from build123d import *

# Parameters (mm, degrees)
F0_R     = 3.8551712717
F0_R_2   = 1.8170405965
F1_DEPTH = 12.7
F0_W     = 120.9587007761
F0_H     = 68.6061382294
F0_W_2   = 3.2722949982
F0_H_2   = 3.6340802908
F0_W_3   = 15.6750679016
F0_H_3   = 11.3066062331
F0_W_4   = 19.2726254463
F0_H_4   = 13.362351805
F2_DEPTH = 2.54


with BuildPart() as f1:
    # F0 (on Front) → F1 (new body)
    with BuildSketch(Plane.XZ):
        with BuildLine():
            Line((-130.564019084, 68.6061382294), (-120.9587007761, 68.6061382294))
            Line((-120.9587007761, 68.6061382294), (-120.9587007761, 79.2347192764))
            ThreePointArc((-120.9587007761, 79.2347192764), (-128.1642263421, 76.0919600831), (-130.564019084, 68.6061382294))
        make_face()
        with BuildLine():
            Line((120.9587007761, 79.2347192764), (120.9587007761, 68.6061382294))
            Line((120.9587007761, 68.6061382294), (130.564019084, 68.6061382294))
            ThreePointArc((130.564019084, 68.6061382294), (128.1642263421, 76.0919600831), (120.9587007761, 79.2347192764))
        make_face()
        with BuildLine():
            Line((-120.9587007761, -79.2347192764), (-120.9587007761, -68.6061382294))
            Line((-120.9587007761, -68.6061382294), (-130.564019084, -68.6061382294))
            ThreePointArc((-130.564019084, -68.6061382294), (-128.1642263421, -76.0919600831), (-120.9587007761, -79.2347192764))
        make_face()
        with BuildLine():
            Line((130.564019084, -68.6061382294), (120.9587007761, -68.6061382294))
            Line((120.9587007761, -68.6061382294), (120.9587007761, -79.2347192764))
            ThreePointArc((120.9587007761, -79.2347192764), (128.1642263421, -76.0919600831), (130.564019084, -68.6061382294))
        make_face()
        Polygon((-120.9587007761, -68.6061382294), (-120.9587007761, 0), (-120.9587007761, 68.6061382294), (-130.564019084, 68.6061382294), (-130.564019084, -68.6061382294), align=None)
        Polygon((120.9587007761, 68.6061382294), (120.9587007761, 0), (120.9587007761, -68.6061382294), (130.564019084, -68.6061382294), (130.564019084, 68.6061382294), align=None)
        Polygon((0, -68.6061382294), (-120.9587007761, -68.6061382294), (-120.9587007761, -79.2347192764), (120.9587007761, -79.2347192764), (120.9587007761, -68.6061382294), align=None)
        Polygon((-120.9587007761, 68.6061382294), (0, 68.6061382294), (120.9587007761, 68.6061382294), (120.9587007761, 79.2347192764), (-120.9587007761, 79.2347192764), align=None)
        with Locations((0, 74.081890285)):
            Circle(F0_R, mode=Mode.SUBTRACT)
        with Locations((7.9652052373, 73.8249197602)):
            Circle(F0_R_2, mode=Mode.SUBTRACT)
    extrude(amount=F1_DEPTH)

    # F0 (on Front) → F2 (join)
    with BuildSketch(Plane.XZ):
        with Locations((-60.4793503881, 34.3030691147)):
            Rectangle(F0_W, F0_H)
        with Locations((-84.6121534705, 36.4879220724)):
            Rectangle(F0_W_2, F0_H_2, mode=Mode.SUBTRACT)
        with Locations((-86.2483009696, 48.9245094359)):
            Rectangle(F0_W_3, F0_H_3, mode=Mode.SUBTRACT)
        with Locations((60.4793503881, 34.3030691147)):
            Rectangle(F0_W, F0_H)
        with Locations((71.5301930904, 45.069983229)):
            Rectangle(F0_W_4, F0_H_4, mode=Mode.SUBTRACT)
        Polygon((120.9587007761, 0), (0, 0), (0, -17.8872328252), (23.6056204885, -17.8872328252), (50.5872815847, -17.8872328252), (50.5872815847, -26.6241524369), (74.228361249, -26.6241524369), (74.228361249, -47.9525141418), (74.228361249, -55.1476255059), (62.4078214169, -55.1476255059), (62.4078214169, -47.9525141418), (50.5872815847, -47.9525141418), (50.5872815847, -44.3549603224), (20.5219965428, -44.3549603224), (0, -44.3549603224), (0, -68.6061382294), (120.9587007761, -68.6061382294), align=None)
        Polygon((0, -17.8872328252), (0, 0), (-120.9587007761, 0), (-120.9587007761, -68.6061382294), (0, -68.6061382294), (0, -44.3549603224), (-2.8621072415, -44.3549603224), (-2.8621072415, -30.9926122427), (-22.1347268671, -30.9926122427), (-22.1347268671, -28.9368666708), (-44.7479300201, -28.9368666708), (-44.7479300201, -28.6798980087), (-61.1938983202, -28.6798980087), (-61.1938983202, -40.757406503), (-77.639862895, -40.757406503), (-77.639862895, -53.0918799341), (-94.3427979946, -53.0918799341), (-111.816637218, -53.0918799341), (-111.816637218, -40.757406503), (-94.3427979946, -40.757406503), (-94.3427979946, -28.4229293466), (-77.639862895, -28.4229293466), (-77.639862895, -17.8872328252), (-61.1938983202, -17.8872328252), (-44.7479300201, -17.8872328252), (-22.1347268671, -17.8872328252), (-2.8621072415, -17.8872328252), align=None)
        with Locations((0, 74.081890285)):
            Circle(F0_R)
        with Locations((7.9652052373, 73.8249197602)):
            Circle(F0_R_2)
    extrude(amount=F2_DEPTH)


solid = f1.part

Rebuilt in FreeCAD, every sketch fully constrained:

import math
import FreeCAD as App
import Part
import Sketcher
from FreeCAD import Vector
Q = App.Units.Quantity

doc = App.newDocument("Part")
body = doc.addObject("PartDesign::Body", "Body")

sketch1 = doc.addObject("Sketcher::SketchObject", "Sketch")
body.addObject(sketch1)
sketch1.AttachmentSupport = (doc.XZ_Plane, [""])
sketch1.MapMode = "FlatFace"
sketch1.addGeometry([
    Part.ArcOfCircle(Part.Circle(Vector(-121.1, 69.7, 0), Vector(0, 0, 1), 9.5), math.radians(89), math.radians(187)),
    Part.LineSegment(Vector(-130.6, 68.6, 0), Vector(-130.6, -68.6, 0)),
    Part.ArcOfCircle(Part.Circle(Vector(-121.1, -69.7, 0), Vector(0, 0, 1), 9.5), math.radians(173), math.radians(271)),
    Part.LineSegment(Vector(-121, -79.2, 0), Vector(121, -79.2, 0)),
    Part.ArcOfCircle(Part.Circle(Vector(121.1, -69.7, 0), Vector(0, 0, 1), 9.5), math.radians(-91), math.radians(7)),
    Part.LineSegment(Vector(130.6, -68.6, 0), Vector(130.6, 68.6, 0)),
    Part.ArcOfCircle(Part.Circle(Vector(121.1, 69.7, 0), Vector(0, 0, 1), 9.5), math.radians(-7), math.radians(91)),
    Part.LineSegment(Vector(121, 79.2, 0), Vector(-121, 79.2, 0)),
    Part.LineSegment(Vector(121, 68.6, 0), Vector(121, -68.6, 0)),
    Part.LineSegment(Vector(121, -68.6, 0), Vector(-121, -68.6, 0)),
    Part.LineSegment(Vector(-121, -68.6, 0), Vector(-121, 68.6, 0)),
    Part.LineSegment(Vector(-121, 68.6, 0), Vector(121, 68.6, 0)),
    Part.Circle(Vector(0, 74.1, 0), Vector(0, 0, 1), 3.9),
    Part.Circle(Vector(8, 73.8, 0), Vector(0, 0, 1), 1.8),
], False)
sketch1.addConstraint([
    Sketcher.Constraint("Coincident", 0, 2, 1, 1),
    Sketcher.Constraint("Coincident", 1, 2, 2, 1),
    Sketcher.Constraint("Coincident", 2, 2, 3, 1),
    Sketcher.Constraint("Coincident", 3, 2, 4, 1),
    Sketcher.Constraint("Coincident", 4, 2, 5, 1),
    Sketcher.Constraint("Coincident", 5, 2, 6, 1),
    Sketcher.Constraint("Coincident", 6, 2, 7, 1),
    Sketcher.Constraint("Coincident", 7, 2, 0, 1),
    Sketcher.Constraint("Coincident", 8, 2, 9, 1),
    Sketcher.Constraint("Coincident", 9, 2, 10, 1),
    Sketcher.Constraint("Coincident", 10, 2, 11, 1),
    Sketcher.Constraint("Coincident", 11, 2, 8, 1),
    Sketcher.Constraint("Vertical", 1),
    Sketcher.Constraint("Horizontal", 3),
    Sketcher.Constraint("Vertical", 5),
    Sketcher.Constraint("Horizontal", 7),
    Sketcher.Constraint("Vertical", 8),
    Sketcher.Constraint("Horizontal", 9),
    Sketcher.Constraint("Vertical", 10),
    Sketcher.Constraint("Horizontal", 11),
    Sketcher.Constraint("Equal", 0, 2),
    Sketcher.Constraint("Equal", 2, 4),
    Sketcher.Constraint("Equal", 4, 6),
    Sketcher.Constraint("Symmetric", 0, 3, 4, 3, -1, 1),
    Sketcher.Constraint("Symmetric", 2, 3, 6, 3, -1, 1),
    Sketcher.Constraint("Symmetric", 8, 2, 10, 2, -1, 1),
    Sketcher.Constraint("Symmetric", 2, 3, 4, 3, -2),
    Sketcher.Constraint("PointOnObject", 12, 3, -2),
    Sketcher.Constraint("Horizontal", 1, 2, 4, 2),
    Sketcher.Constraint("Horizontal", 4, 2, 8, 2),
    Sketcher.Constraint("Vertical", 3, 2, 6, 2),
    Sketcher.Constraint("Vertical", 6, 2, 8, 2),
    Sketcher.Constraint("Diameter", 13, 3.634081),
    Sketcher.Constraint("Diameter", 12, 7.710343),
    Sketcher.Constraint("DistanceX", 3, 1, 3, 2, 241.917402),
    Sketcher.Constraint("Radius", 0, 9.540267),
    Sketcher.Constraint("DistanceY", 13, 3, 6, 2, 5.4098),
    Sketcher.Constraint("DistanceY", 1, 2, 1, 1, 137.212276),
    Sketcher.Constraint("DistanceY", -1, 1, 12, 3, 74.08189),
    Sketcher.Constraint("DistanceY", -1, 1, 13, 3, 73.82492),
    Sketcher.Constraint("DistanceX", 0, 2, -1, 1, 130.564019),
    Sketcher.Constraint("DistanceX", -1, 1, 13, 3, 7.965205),
])
pad1 = doc.addObject("PartDesign::Pad", "Pad")
body.addObject(pad1)
pad1.Profile = sketch1
pad1.Length = Q("0.5 in")

sketch2 = doc.addObject("Sketcher::SketchObject", "Sketch001")
body.addObject(sketch2)
sketch2.AttachmentSupport = (doc.XZ_Plane, [""])
sketch2.MapMode = "FlatFace"
sketch2.addGeometry([
    Part.LineSegment(Vector(-120.96, 68.61, 0), Vector(-120.96, -68.61, 0)),
    Part.LineSegment(Vector(-120.96, -68.61, 0), Vector(120.96, -68.61, 0)),
    Part.LineSegment(Vector(120.96, -68.61, 0), Vector(120.96, 68.61, 0)),
    Part.LineSegment(Vector(120.96, 68.61, 0), Vector(-120.96, 68.61, 0)),
    Part.LineSegment(Vector(50.59, -17.89, 0), Vector(50.59, -26.62, 0)),
    Part.LineSegment(Vector(50.59, -26.62, 0), Vector(74.23, -26.62, 0)),
    Part.LineSegment(Vector(74.23, -26.62, 0), Vector(74.23, -55.15, 0)),
    Part.LineSegment(Vector(74.23, -55.15, 0), Vector(62.41, -55.15, 0)),
    Part.LineSegment(Vector(62.41, -55.15, 0), Vector(62.41, -47.95, 0)),
    Part.LineSegment(Vector(62.41, -47.95, 0), Vector(50.59, -47.95, 0)),
    Part.LineSegment(Vector(50.59, -47.95, 0), Vector(50.59, -44.35, 0)),
    Part.LineSegment(Vector(50.59, -44.35, 0), Vector(-2.86, -44.35, 0)),
    Part.LineSegment(Vector(-2.86, -44.35, 0), Vector(-2.86, -30.99, 0)),
    Part.LineSegment(Vector(-2.86, -30.99, 0), Vector(-22.13, -30.99, 0)),
    Part.LineSegment(Vector(-22.13, -30.99, 0), Vector(-22.13, -28.94, 0)),
    Part.LineSegment(Vector(-22.13, -28.94, 0), Vector(-44.75, -28.94, 0)),
    Part.LineSegment(Vector(-44.75, -28.94, 0), Vector(-44.75, -28.68, 0)),
    Part.LineSegment(Vector(-44.75, -28.68, 0), Vector(-61.19, -28.68, 0)),
    Part.LineSegment(Vector(-61.19, -28.68, 0), Vector(-61.19, -40.76, 0)),
    Part.LineSegment(Vector(-61.19, -40.76, 0), Vector(-77.64, -40.76, 0)),
    Part.LineSegment(Vector(-77.64, -40.76, 0), Vector(-77.64, -53.09, 0)),
    Part.LineSegment(Vector(-77.64, -53.09, 0), Vector(-111.82, -53.09, 0)),
    Part.LineSegment(Vector(-111.82, -53.09, 0), Vector(-111.82, -40.76, 0)),
    Part.LineSegment(Vector(-111.82, -40.76, 0), Vector(-94.34, -40.76, 0)),
    Part.LineSegment(Vector(-94.34, -40.76, 0), Vector(-94.34, -28.42, 0)),
    Part.LineSegment(Vector(-94.34, -28.42, 0), Vector(-77.64, -28.42, 0)),
    Part.LineSegment(Vector(-77.64, -28.42, 0), Vector(-77.64, -17.89, 0)),
    Part.LineSegment(Vector(-77.64, -17.89, 0), Vector(50.59, -17.89, 0)),
    Part.LineSegment(Vector(-82.98, 34.67, 0), Vector(-86.25, 34.67, 0)),
    Part.LineSegment(Vector(-86.25, 34.67, 0), Vector(-86.25, 38.3, 0)),
    Part.LineSegment(Vector(-86.25, 38.3, 0), Vector(-82.98, 38.3, 0)),
    Part.LineSegment(Vector(-82.98, 38.3, 0), Vector(-82.98, 34.67, 0)),
    Part.LineSegment(Vector(-78.41, 43.27, 0), Vector(-94.09, 43.27, 0)),
    Part.LineSegment(Vector(-94.09, 43.27, 0), Vector(-94.09, 54.58, 0)),
    Part.LineSegment(Vector(-94.09, 54.58, 0), Vector(-78.41, 54.58, 0)),
    Part.LineSegment(Vector(-78.41, 54.58, 0), Vector(-78.41, 43.27, 0)),
    Part.LineSegment(Vector(81.17, 38.39, 0), Vector(61.89, 38.39, 0)),
    Part.LineSegment(Vector(61.89, 38.39, 0), Vector(61.89, 51.75, 0)),
    Part.LineSegment(Vector(61.89, 51.75, 0), Vector(81.17, 51.75, 0)),
    Part.LineSegment(Vector(81.17, 51.75, 0), Vector(81.17, 38.39, 0)),
    Part.Circle(Vector(0, 74.08, 0), Vector(0, 0, 1), 3.86),
    Part.Circle(Vector(7.97, 73.82, 0), Vector(0, 0, 1), 1.82),
], False)
sketch2.addConstraint([
    Sketcher.Constraint("Coincident", 0, 2, 1, 1),
    Sketcher.Constraint("Coincident", 1, 2, 2, 1),
    Sketcher.Constraint("Coincident", 2, 2, 3, 1),
    Sketcher.Constraint("Coincident", 3, 2, 0, 1),
    Sketcher.Constraint("Coincident", 4, 2, 5, 1),
    Sketcher.Constraint("Coincident", 5, 2, 6, 1),
    Sketcher.Constraint("Coincident", 6, 2, 7, 1),
    Sketcher.Constraint("Coincident", 7, 2, 8, 1),
    Sketcher.Constraint("Coincident", 8, 2, 9, 1),
    Sketcher.Constraint("Coincident", 9, 2, 10, 1),
    Sketcher.Constraint("Coincident", 10, 2, 11, 1),
    Sketcher.Constraint("Coincident", 11, 2, 12, 1),
    Sketcher.Constraint("Coincident", 12, 2, 13, 1),
    Sketcher.Constraint("Coincident", 13, 2, 14, 1),
    Sketcher.Constraint("Coincident", 14, 2, 15, 1),
    Sketcher.Constraint("Coincident", 15, 2, 16, 1),
    Sketcher.Constraint("Coincident", 16, 2, 17, 1),
    Sketcher.Constraint("Coincident", 17, 2, 18, 1),
    Sketcher.Constraint("Coincident", 18, 2, 19, 1),
    Sketcher.Constraint("Coincident", 19, 2, 20, 1),
    Sketcher.Constraint("Coincident", 20, 2, 21, 1),
    Sketcher.Constraint("Coincident", 21, 2, 22, 1),
    Sketcher.Constraint("Coincident", 22, 2, 23, 1),
    Sketcher.Constraint("Coincident", 23, 2, 24, 1),
    Sketcher.Constraint("Coincident", 24, 2, 25, 1),
    Sketcher.Constraint("Coincident", 25, 2, 26, 1),
    Sketcher.Constraint("Coincident", 26, 2, 27, 1),
    Sketcher.Constraint("Coincident", 27, 2, 4, 1),
    Sketcher.Constraint("Coincident", 28, 2, 29, 1),
    Sketcher.Constraint("Coincident", 29, 2, 30, 1),
    Sketcher.Constraint("Coincident", 30, 2, 31, 1),
    Sketcher.Constraint("Coincident", 31, 2, 28, 1),
    Sketcher.Constraint("Coincident", 32, 2, 33, 1),
    Sketcher.Constraint("Coincident", 33, 2, 34, 1),
    Sketcher.Constraint("Coincident", 34, 2, 35, 1),
    Sketcher.Constraint("Coincident", 35, 2, 32, 1),
    Sketcher.Constraint("Coincident", 36, 2, 37, 1),
    Sketcher.Constraint("Coincident", 37, 2, 38, 1),
    Sketcher.Constraint("Coincident", 38, 2, 39, 1),
    Sketcher.Constraint("Coincident", 39, 2, 36, 1),
    Sketcher.Constraint("Vertical", 0),
    Sketcher.Constraint("Horizontal", 1),
    Sketcher.Constraint("Vertical", 2),
    Sketcher.Constraint("Horizontal", 3),
    Sketcher.Constraint("Vertical", 4),
    Sketcher.Constraint("Horizontal", 5),
    Sketcher.Constraint("Vertical", 6),
    Sketcher.Constraint("Horizontal", 7),
    Sketcher.Constraint("Vertical", 8),
    Sketcher.Constraint("Horizontal", 9),
    Sketcher.Constraint("Vertical", 10),
    Sketcher.Constraint("Horizontal", 11),
    Sketcher.Constraint("Vertical", 12),
    Sketcher.Constraint("Horizontal", 13),
    Sketcher.Constraint("Vertical", 14),
    Sketcher.Constraint("Horizontal", 15),
    Sketcher.Constraint("Vertical", 16),
    Sketcher.Constraint("Horizontal", 17),
    Sketcher.Constraint("Vertical", 18),
    Sketcher.Constraint("Horizontal", 19),
    Sketcher.Constraint("Vertical", 20),
    Sketcher.Constraint("Horizontal", 21),
    Sketcher.Constraint("Vertical", 22),
    Sketcher.Constraint("Horizontal", 23),
    Sketcher.Constraint("Vertical", 24),
    Sketcher.Constraint("Horizontal", 25),
    Sketcher.Constraint("Vertical", 26),
    Sketcher.Constraint("Horizontal", 27),
    Sketcher.Constraint("Horizontal", 28),
    Sketcher.Constraint("Vertical", 29),
    Sketcher.Constraint("Horizontal", 30),
    Sketcher.Constraint("Vertical", 31),
    Sketcher.Constraint("Horizontal", 32),
    Sketcher.Constraint("Vertical", 33),
    Sketcher.Constraint("Horizontal", 34),
    Sketcher.Constraint("Vertical", 35),
    Sketcher.Constraint("Horizontal", 36),
    Sketcher.Constraint("Vertical", 37),
    Sketcher.Constraint("Horizontal", 38),
    Sketcher.Constraint("Vertical", 39),
    Sketcher.Constraint("Symmetric", 0, 2, 2, 2, -1, 1),
    Sketcher.Constraint("PointOnObject", 40, 3, -2),
    Sketcher.Constraint("Horizontal", 19, 2, 22, 2),
    Sketcher.Constraint("Vertical", 4, 2, 9, 2),
    Sketcher.Constraint("Vertical", 20, 2, 25, 2),
    Sketcher.Constraint("Equal", 7, 9),
    Sketcher.Constraint("Diameter", 41, 3.634081),
    Sketcher.Constraint("Diameter", 40, 7.710343),
    Sketcher.Constraint("DistanceX", 1, 1, 1, 2, 241.917402),
    Sketcher.Constraint("DistanceX", 5, 1, 5, 2, 23.64108),
    Sketcher.Constraint("DistanceX", 11, 2, 11, 1, 53.449389),
    Sketcher.Constraint("DistanceX", 13, 2, 13, 1, 19.27262),
    Sketcher.Constraint("DistanceX", 17, 2, 17, 1, 16.445968),
    Sketcher.Constraint("DistanceX", 23, 1, 23, 2, 17.473839),
    Sketcher.Constraint("DistanceY", 4, 2, 4, 1, 8.73692),
    Sketcher.Constraint("DistanceY", 8, 1, 8, 2, 7.195111),
    Sketcher.Constraint("DistanceY", 12, 1, 12, 2, 13.362348),
    Sketcher.Constraint("DistanceY", 16, 1, 16, 2, 0.256969),
    Sketcher.Constraint("DistanceY", 18, 2, 18, 1, 12.077508),
    Sketcher.Constraint("DistanceY", 29, 1, 29, 2, 3.63408),
    Sketcher.Constraint("DistanceY", 37, 1, 37, 2, 13.362352),
    Sketcher.Constraint("DistanceY", 16, 2, -1, 1, 28.679898),
    Sketcher.Constraint("DistanceX", 17, 2, -1, 1, 61.193898),
    Sketcher.Constraint("DistanceX", 28, 2, -1, 1, 86.248301),
    Sketcher.Constraint("DistanceY", 9, 2, 12, 2, 16.959902),
    Sketcher.Constraint("DistanceX", 23, 2, 18, 2, 33.1489),
    Sketcher.Constraint("DistanceX", 27, 2, 36, 2, 11.306599),
    Sketcher.Constraint("DistanceX", 41, 3, 38, 2, 73.201301),
    Sketcher.Constraint("DistanceX", 15, 2, 15, 1, 22.613203),
    Sketcher.Constraint("DistanceX", 19, 2, 19, 1, 16.445965),
    Sketcher.Constraint("DistanceX", 28, 2, 28, 1, 3.272295),
    Sketcher.Constraint("DistanceX", 32, 2, 32, 1, 15.675068),
    Sketcher.Constraint("DistanceX", 36, 2, 36, 1, 19.272625),
    Sketcher.Constraint("DistanceY", 0, 2, 0, 1, 137.212276),
    Sketcher.Constraint("DistanceY", 6, 2, 6, 1, 28.523473),
    Sketcher.Constraint("DistanceY", 14, 1, 14, 2, 2.055746),
    Sketcher.Constraint("DistanceY", 20, 2, 20, 1, 12.334473),
    Sketcher.Constraint("DistanceY", 24, 1, 24, 2, 12.334477),
    Sketcher.Constraint("DistanceY", 33, 1, 33, 2, 11.306606),
    Sketcher.Constraint("DistanceY", -1, 1, 40, 3, 74.08189),
    Sketcher.Constraint("DistanceY", -1, 1, 41, 3, 73.82492),
    Sketcher.Constraint("DistanceY", -1, 1, 28, 2, 34.670882),
    Sketcher.Constraint("DistanceY", -1, 1, 37, 2, 51.751159),
    Sketcher.Constraint("DistanceX", 32, 2, 30, 2, 11.109829),
    Sketcher.Constraint("DistanceY", 32, 2, 3, 2, 25.334932),
])
pad2 = doc.addObject("PartDesign::Pad", "Pad001")
body.addObject(pad2)
pad2.Profile = sketch2
pad2.Length = Q("0.1 in")

doc.recompute()
